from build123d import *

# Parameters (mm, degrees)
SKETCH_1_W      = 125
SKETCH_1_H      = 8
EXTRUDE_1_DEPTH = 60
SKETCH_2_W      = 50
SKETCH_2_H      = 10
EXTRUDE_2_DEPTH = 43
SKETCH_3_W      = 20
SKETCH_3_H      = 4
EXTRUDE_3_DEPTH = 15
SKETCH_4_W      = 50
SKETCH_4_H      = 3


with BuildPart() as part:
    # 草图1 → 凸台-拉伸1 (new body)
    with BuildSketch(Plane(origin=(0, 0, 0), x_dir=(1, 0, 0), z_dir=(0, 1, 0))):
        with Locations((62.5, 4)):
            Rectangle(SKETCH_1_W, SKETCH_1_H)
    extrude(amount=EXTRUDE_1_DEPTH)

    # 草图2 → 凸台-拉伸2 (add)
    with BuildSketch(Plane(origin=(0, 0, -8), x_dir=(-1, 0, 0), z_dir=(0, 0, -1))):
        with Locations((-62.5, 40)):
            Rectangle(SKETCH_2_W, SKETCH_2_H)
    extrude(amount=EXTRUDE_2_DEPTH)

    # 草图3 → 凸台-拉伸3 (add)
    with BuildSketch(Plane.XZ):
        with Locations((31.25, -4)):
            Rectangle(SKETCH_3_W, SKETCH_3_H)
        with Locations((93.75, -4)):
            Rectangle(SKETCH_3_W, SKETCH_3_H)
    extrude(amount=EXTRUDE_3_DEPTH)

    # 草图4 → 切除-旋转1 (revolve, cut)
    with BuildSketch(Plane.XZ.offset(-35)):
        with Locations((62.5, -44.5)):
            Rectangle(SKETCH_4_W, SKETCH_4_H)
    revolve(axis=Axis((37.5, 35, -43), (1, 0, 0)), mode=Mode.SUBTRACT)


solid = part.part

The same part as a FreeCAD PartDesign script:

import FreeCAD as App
import Part
import Sketcher
from FreeCAD import Vector

doc = App.newDocument("Part")
body = doc.addObject("PartDesign::Body", "Body")

# Sketch on XZ plane
sketch1 = body.newObject("Sketcher::SketchObject", "Sketch")
sketch1.AttachmentSupport = (doc.getObject("XZ_Plane"), [""])
sketch1.MapMode = "FlatFace"
sketch1.addGeometry([
    Part.LineSegment(Vector(0, -8, 0), Vector(0, 0, 0)),
    Part.LineSegment(Vector(0, 0, 0), Vector(125, 0, 0)),
    Part.LineSegment(Vector(125, 0, 0), Vector(125, -8, 0)),
    Part.LineSegment(Vector(125, -8, 0), Vector(0, -8, 0)),
], False)
sketch1.addConstraint([
    Sketcher.Constraint("Coincident", 0, 2, 1, 1),
    Sketcher.Constraint("Coincident", 1, 2, 2, 1),
    Sketcher.Constraint("Coincident", 2, 2, 3, 1),
    Sketcher.Constraint("Coincident", 3, 2, 0, 1),
    Sketcher.Constraint("Vertical", 0),
    Sketcher.Constraint("Horizontal", 1),
    Sketcher.Constraint("Vertical", 2),
    Sketcher.Constraint("Horizontal", 3),
    Sketcher.Constraint("Coincident", 0, 2, -1, 1),
    Sketcher.Constraint("DistanceX", 1, 1, 1, 2, 125.0),
    Sketcher.Constraint("DistanceY", 0, 1, 0, 2, 8.0),
])
pad1 = body.newObject("PartDesign::Pad", "Pad")
pad1.Profile = sketch1
pad1.Length = 60
pad1.Reversed = True

# Sketch on XY plane
sketch2 = body.newObject("Sketcher::SketchObject", "Sketch001")
sketch2.AttachmentSupport = (doc.getObject("XY_Plane"), [""])
sketch2.MapMode = "FlatFace"
sketch2.AttachmentOffset = App.Placement(Vector(0, 0, -8), App.Rotation())
sketch2.addGeometry([
    Part.LineSegment(Vector(88, 45, 0), Vector(88, 35, 0)),
    Part.LineSegment(Vector(88, 35, 0), Vector(38, 35, 0)),
    Part.LineSegment(Vector(38, 35, 0), Vector(38, 45, 0)),
    Part.LineSegment(Vector(38, 45, 0), Vector(88, 45, 0)),
], False)
sketch2.addConstraint([
    Sketcher.Constraint("Coincident", 0, 2, 1, 1),
    Sketcher.Constraint("Coincident", 1, 2, 2, 1),
    Sketcher.Constraint("Coincident", 2, 2, 3, 1),
    Sketcher.Constraint("Coincident", 3, 2, 0, 1),
    Sketcher.Constraint("Vertical", 0),
    Sketcher.Constraint("Horizontal", 1),
    Sketcher.Constraint("Vertical", 2),
    Sketcher.Constraint("Horizontal", 3),
    Sketcher.Constraint("DistanceX", 1, 2, 1, 1, 50.0),
    Sketcher.Constraint("DistanceY", 0, 2, 0, 1, 10.0),
    Sketcher.Constraint("DistanceY", -1, 1, 0, 2, 35.0),
    Sketcher.Constraint("DistanceX", -1, 1, 0, 2, 87.5),
])
pad2 = body.newObject("PartDesign::Pad", "Pad001")
pad2.Profile = sketch2
pad2.Length = 43
pad2.Reversed = True

# Sketch on XZ plane
sketch3 = body.newObject("Sketcher::SketchObject", "Sketch002")
sketch3.AttachmentSupport = (doc.getObject("XZ_Plane"), [""])
sketch3.MapMode = "FlatFace"
sketch3.addGeometry([
    Part.LineSegment(Vector(21.2, -2, 0), Vector(21.2, -6, 0)),  # 0
    Part.LineSegment(Vector(21.2, -6, 0), Vector(41.2, -6, 0)),  # 1
    Part.LineSegment(Vector(41.2, -6, 0), Vector(41.2, -2, 0)),  # 2
    Part.LineSegment(Vector(41.2, -2, 0), Vector(21.2, -2, 0)),  # 3
    Part.LineSegment(Vector(83.8, -2, 0), Vector(83.8, -6, 0)),  # 4
    Part.LineSegment(Vector(83.8, -6, 0), Vector(103.8, -6, 0)),  # 5
    Part.LineSegment(Vector(103.8, -6, 0), Vector(103.8, -2, 0)),  # 6
    Part.LineSegment(Vector(103.8, -2, 0), Vector(83.8, -2, 0)),  # 7
], False)
sketch3.addConstraint([
    Sketcher.Constraint("Coincident", 0, 2, 1, 1),
    Sketcher.Constraint("Coincident", 1, 2, 2, 1),
    Sketcher.Constraint("Coincident", 2, 2, 3, 1),
    Sketcher.Constraint("Coincident", 3, 2, 0, 1),
    Sketcher.Constraint("Coincident", 4, 2, 5, 1),
    Sketcher.Constraint("Coincident", 5, 2, 6, 1),
    Sketcher.Constraint("Coincident", 6, 2, 7, 1),
    Sketcher.Constraint("Coincident", 7, 2, 4, 1),
    Sketcher.Constraint("Vertical", 0),
    Sketcher.Constraint("Horizontal", 1),
    Sketcher.Constraint("Vertical", 2),
    Sketcher.Constraint("Horizontal", 3),
    Sketcher.Constraint("Vertical", 4),
    Sketcher.Constraint("Horizontal", 5),
    Sketcher.Constraint("Vertical", 6),
    Sketcher.Constraint("Horizontal", 7),
    Sketcher.Constraint("Horizontal", 1, 2, 4, 2),
    Sketcher.Constraint("Horizontal", 3, 2, 6, 2),
    Sketcher.Constraint("Equal", 3, 5),
    Sketcher.Constraint("DistanceX", 1, 1, 1, 2, 20.0),
    Sketcher.Constraint("DistanceY", 0, 2, 0, 1, 4.0),
    Sketcher.Constraint("DistanceY", 0, 2, -1, 1, 6.0),
    Sketcher.Constraint("DistanceX", 1, 2, 4, 2, 42.5),
    Sketcher.Constraint("DistanceX", -1, 1, 0, 2, 21.25),
])
pad3 = body.newObject("PartDesign::Pad", "Pad002")
pad3.Profile = sketch3
pad3.Length = 15

# Sketch on XZ plane
sketch4 = body.newObject("Sketcher::SketchObject", "Sketch003")
sketch4.AttachmentSupport = (doc.getObject("XZ_Plane"), [""])
sketch4.MapMode = "FlatFace"
sketch4.AttachmentOffset = App.Placement(Vector(0, 0, -35), App.Rotation())
sketch4.addGeometry([
    Part.LineSegment(Vector(37.5, -43, 0), Vector(37.5, -46, 0)),
    Part.LineSegment(Vector(37.5, -46, 0), Vector(87.5, -46, 0)),
    Part.LineSegment(Vector(87.5, -46, 0), Vector(87.5, -43, 0)),
    Part.LineSegment(Vector(87.5, -43, 0), Vector(37.5, -43, 0)),
], False)
sketch4.addGeometry(Part.LineSegment(Vector(37.5, -43, 0), Vector(87.5, -43, 0)), True)  # axis
sketch4.addConstraint([
    Sketcher.Constraint("Coincident", 0, 2, 1, 1),
    Sketcher.Constraint("Coincident", 1, 2, 2, 1),
    Sketcher.Constraint("Coincident", 2, 2, 3, 1),
    Sketcher.Constraint("Coincident", 3, 2, 0, 1),
    Sketcher.Constraint("Vertical", 0),
    Sketcher.Constraint("Horizontal", 1),
    Sketcher.Constraint("Vertical", 2),
    Sketcher.Constraint("Horizontal", 3),
    Sketcher.Constraint("Horizontal", 4),
    Sketcher.Constraint("Coincident", 4, 1, 3, 2),
    Sketcher.Constraint("Vertical", 1, 2, 4, 2),
    Sketcher.Constraint("DistanceX", 1, 1, 1, 2, 50.0),
    Sketcher.Constraint("DistanceY", 0, 2, 0, 1, 3.0),
    Sketcher.Constraint("DistanceY", 0, 2, -1, 1, 46.0),
    Sketcher.Constraint("DistanceX", -1, 1, 0, 2, 37.5),
])
groove = body.newObject("PartDesign::Groove", "Groove")
groove.Profile = sketch4
groove.ReferenceAxis = (sketch4, ["Axis0"])
groove.Angle = 360

doc.recompute()
